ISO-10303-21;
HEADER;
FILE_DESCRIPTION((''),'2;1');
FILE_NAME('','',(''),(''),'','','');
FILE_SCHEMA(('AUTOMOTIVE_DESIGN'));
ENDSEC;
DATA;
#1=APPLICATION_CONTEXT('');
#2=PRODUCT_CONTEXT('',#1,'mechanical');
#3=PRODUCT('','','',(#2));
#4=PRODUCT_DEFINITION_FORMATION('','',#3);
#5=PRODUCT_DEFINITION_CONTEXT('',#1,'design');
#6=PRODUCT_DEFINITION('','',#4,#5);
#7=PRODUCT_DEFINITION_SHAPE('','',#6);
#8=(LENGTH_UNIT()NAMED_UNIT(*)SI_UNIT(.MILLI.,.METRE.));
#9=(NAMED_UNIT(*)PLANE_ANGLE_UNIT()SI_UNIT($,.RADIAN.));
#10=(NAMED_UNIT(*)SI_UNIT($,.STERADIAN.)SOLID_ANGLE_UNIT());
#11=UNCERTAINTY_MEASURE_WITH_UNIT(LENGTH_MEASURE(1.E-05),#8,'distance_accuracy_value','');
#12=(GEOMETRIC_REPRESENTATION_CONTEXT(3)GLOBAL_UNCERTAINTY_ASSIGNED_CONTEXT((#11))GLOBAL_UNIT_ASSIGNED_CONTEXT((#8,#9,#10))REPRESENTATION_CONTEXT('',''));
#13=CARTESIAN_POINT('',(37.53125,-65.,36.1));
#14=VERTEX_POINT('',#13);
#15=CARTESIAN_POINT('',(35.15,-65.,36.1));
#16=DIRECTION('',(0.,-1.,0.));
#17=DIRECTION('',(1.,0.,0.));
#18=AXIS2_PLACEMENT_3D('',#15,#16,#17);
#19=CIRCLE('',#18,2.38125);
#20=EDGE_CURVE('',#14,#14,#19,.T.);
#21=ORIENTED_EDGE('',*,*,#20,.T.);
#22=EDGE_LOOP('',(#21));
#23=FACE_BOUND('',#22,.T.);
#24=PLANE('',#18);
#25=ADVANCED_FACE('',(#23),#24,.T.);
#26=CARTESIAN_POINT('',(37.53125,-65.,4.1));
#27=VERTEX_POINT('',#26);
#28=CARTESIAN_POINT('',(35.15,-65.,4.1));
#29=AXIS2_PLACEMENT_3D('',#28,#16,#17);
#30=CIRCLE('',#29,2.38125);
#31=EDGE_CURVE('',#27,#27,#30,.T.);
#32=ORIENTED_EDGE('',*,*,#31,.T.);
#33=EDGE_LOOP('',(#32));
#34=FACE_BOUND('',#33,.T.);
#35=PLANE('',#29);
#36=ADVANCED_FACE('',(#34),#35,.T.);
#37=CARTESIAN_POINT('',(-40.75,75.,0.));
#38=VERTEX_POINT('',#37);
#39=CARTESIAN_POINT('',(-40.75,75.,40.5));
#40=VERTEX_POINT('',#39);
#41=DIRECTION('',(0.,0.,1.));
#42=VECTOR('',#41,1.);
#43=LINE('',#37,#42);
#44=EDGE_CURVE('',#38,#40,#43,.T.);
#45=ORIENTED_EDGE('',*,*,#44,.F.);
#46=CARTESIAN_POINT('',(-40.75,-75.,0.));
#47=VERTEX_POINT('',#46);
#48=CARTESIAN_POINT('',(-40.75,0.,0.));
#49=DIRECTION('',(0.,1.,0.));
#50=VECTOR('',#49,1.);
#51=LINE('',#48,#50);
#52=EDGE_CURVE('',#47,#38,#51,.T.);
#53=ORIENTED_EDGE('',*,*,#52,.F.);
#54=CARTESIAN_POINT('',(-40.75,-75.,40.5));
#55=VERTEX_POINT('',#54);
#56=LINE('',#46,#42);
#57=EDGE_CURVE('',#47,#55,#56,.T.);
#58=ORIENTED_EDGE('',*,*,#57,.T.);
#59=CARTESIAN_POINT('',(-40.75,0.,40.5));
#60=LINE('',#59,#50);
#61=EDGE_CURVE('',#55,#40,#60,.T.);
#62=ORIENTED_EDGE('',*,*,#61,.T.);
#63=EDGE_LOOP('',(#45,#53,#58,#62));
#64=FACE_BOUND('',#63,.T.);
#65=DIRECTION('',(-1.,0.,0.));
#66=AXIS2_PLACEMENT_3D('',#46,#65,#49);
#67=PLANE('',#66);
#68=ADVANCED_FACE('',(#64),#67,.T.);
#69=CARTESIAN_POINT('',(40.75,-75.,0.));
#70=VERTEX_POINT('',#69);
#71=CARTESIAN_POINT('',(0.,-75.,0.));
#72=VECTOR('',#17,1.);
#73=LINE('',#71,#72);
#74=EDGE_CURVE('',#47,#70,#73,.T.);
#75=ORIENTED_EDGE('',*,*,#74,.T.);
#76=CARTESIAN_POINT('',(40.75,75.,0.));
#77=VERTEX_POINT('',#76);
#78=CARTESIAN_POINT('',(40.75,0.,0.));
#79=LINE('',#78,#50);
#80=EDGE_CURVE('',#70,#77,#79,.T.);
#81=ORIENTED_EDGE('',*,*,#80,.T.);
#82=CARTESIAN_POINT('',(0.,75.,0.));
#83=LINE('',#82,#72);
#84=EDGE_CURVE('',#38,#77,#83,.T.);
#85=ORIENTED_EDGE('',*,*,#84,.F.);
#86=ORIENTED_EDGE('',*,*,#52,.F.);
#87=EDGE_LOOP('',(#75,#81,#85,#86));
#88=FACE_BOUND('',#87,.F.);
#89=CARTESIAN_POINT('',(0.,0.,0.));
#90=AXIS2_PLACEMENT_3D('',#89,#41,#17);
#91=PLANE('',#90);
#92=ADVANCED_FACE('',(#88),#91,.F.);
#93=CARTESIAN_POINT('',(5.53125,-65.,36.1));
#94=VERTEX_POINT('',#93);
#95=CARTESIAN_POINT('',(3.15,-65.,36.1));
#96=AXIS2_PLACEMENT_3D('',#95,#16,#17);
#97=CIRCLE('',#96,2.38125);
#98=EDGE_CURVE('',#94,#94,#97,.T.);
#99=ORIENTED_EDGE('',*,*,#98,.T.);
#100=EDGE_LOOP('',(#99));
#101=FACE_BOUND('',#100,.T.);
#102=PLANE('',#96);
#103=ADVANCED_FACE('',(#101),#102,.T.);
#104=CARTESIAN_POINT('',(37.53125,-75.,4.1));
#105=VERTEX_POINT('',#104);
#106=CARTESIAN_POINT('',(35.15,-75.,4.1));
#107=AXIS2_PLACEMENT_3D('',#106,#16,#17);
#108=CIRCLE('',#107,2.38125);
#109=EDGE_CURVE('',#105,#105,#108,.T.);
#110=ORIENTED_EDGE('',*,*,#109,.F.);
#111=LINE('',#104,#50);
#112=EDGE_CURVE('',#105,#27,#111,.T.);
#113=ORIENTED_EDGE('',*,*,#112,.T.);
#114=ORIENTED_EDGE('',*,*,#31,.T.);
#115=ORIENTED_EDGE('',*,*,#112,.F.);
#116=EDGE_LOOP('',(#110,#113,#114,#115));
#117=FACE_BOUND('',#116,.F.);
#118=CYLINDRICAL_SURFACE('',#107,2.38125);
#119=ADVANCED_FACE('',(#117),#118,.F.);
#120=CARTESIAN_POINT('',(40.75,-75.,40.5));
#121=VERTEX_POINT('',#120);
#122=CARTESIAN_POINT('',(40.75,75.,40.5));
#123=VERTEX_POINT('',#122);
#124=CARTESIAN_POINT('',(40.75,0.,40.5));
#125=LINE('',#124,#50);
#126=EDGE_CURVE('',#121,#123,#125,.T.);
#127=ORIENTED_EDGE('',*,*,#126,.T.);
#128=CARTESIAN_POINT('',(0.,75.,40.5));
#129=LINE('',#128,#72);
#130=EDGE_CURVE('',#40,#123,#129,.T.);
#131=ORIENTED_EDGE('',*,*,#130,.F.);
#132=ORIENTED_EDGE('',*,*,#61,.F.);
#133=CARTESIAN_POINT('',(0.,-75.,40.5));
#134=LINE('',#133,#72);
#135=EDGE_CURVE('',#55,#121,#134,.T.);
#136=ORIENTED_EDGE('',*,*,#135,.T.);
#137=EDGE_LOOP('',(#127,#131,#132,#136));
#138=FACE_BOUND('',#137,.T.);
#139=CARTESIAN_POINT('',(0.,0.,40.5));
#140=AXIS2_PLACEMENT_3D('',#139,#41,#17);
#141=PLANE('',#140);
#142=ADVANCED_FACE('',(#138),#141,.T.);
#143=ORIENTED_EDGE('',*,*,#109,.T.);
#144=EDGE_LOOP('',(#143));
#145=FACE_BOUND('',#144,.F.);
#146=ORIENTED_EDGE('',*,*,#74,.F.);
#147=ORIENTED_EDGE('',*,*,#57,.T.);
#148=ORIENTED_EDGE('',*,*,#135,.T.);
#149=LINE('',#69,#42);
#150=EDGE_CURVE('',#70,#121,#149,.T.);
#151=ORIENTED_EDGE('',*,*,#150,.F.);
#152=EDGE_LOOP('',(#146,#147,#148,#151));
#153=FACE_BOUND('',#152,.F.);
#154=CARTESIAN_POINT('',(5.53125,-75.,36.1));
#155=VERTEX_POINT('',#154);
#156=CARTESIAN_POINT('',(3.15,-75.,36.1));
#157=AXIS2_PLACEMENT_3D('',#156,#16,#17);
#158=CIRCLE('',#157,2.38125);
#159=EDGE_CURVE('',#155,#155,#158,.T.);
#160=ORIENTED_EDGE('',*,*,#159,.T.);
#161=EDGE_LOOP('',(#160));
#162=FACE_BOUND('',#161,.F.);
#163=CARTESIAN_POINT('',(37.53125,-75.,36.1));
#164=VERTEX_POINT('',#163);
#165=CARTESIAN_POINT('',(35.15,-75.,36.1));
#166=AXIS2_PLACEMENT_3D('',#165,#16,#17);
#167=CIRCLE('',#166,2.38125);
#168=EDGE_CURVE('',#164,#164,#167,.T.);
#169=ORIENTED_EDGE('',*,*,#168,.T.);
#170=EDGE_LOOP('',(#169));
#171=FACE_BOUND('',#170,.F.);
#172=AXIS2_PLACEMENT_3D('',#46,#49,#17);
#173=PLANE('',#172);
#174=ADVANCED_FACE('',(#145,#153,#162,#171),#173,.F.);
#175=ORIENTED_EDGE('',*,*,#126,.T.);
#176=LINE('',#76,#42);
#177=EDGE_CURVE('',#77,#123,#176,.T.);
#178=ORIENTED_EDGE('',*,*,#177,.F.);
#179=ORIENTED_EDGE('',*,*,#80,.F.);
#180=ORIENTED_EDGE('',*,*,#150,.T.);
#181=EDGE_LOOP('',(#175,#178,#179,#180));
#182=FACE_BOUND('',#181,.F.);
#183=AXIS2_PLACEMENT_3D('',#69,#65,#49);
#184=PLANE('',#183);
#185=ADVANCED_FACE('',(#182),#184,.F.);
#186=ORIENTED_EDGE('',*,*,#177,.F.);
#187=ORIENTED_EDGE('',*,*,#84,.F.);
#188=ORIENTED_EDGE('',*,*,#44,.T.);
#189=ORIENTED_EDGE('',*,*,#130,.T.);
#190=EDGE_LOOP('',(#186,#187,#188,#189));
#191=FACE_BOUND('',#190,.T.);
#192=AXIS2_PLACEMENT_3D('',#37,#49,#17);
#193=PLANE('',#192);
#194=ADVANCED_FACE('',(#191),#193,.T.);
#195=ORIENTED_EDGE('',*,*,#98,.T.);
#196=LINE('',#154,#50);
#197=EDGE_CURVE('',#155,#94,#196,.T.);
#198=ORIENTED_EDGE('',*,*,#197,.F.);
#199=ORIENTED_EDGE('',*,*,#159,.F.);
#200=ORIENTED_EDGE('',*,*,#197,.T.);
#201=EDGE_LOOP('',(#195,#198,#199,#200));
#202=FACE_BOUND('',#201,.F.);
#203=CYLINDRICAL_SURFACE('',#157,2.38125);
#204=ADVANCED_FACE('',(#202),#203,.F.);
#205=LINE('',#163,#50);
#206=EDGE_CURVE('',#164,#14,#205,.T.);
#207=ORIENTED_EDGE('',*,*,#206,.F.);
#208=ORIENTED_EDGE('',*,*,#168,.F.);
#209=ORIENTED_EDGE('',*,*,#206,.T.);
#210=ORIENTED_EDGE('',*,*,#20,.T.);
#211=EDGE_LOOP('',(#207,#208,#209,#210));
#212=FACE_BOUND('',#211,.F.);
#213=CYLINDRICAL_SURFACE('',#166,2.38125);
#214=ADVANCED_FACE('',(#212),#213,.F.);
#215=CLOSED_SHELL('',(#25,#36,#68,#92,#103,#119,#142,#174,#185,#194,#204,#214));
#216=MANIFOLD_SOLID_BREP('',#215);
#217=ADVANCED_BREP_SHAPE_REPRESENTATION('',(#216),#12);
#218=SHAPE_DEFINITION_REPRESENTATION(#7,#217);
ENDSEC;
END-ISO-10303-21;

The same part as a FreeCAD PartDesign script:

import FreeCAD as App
import Part
import Sketcher
from FreeCAD import Vector
Q = App.Units.Quantity


def add_polygon(sketch, points):
    """Adds a closed chain of lines whose ends are joined by coincident constraints."""
    first, n = sketch.GeometryCount, len(points)
    for a, b in zip(points, points[1:] + points[:1]):
        sketch.addGeometry(Part.LineSegment(App.Vector(*a, 0), App.Vector(*b, 0)), False)
    for i in range(n):
        sketch.addConstraint(Sketcher.Constraint("Coincident", first + i, 2, first + (i + 1) % n, 1))

doc = App.newDocument("Part")
body = doc.addObject("PartDesign::Body", "Body")

sketch1 = body.newObject("Sketcher::SketchObject", "Sketch")
sketch1.AttachmentSupport = (doc.getObject("XY_Plane"), [""])
sketch1.MapMode = "FlatFace"
add_polygon(sketch1, [(-41, 75), (-41, -75), (41, -75), (41, 75)])
sketch1.addConstraint(Sketcher.Constraint("Vertical", 0))
sketch1.addConstraint(Sketcher.Constraint("Horizontal", 1))
sketch1.addConstraint(Sketcher.Constraint("Vertical", 2))
sketch1.addConstraint(Sketcher.Constraint("Horizontal", 3))
sketch1.addConstraint(Sketcher.Constraint("Symmetric", 0, 2, 2, 2, -1, 1))
sketch1.addConstraint(Sketcher.Constraint("DistanceY", 0, 2, 0, 1, Q("150 mm")))
sketch1.addConstraint(Sketcher.Constraint("DistanceX", 1, 1, 1, 2, Q("81.5 mm")))
pad1 = body.newObject("PartDesign::Pad", "Pad")
pad1.Profile = sketch1
pad1.Length = 40.5

sketch2 = body.newObject("Sketcher::SketchObject", "Sketch001")
sketch2.AttachmentSupport = (doc.getObject("XZ_Plane"), [""])
sketch2.MapMode = "FlatFace"
sketch2.AttachmentOffset = App.Placement(Vector(0, 0, 75), App.Rotation())
sketch2.addGeometry(Part.Circle(Vector(35.1, 36.1, 0), Vector(0, 0, 1), 2.4), False)
sketch2.addGeometry(Part.Circle(Vector(35.1, 4.1, 0), Vector(0, 0, 1), 2.4), False)
sketch2.addGeometry(Part.Circle(Vector(3.1, 36.1, 0), Vector(0, 0, 1), 2.4), False)
sketch2.addConstraint(Sketcher.Constraint("Equal", 0, 1))
sketch2.addConstraint(Sketcher.Constraint("Equal", 1, 2))
sketch2.addConstraint(Sketcher.Constraint("Horizontal", 0, 3, 2, 3))
sketch2.addConstraint(Sketcher.Constraint("Vertical", 0, 3, 1, 3))
sketch2.addConstraint(Sketcher.Constraint("DistanceY", 1, 3, 0, 3, Q("32 mm")))
sketch2.addConstraint(Sketcher.Constraint("DistanceX", 2, 3, 0, 3, Q("32 mm")))
sketch2.addConstraint(Sketcher.Constraint("Diameter", 0, Q("4.7625 mm")))
sketch2.addConstraint(Sketcher.Constraint("DistanceY", -1, 1, 0, 3, Q("36.1 mm")))
sketch2.addConstraint(Sketcher.Constraint("DistanceX", -1, 1, 0, 3, Q("35.15 mm")))
pocket1 = body.newObject("PartDesign::Pocket", "Pocket")
pocket1.Profile = sketch2
pocket1.Length = 10

doc.recompute()
